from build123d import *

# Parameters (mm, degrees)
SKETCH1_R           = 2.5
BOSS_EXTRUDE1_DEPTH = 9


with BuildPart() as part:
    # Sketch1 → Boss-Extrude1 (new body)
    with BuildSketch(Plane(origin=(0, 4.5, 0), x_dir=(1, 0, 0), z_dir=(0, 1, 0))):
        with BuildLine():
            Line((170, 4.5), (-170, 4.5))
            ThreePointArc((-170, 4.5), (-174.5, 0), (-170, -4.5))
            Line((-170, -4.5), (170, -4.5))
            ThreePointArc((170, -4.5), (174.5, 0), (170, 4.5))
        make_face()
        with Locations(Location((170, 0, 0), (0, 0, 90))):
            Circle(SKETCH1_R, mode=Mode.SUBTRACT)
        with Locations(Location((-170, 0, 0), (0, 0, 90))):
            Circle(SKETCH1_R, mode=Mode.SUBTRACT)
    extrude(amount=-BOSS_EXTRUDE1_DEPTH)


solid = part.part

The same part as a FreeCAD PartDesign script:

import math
import FreeCAD as App
import Part
import Sketcher
from FreeCAD import Vector
Q = App.Units.Quantity

doc = App.newDocument("Part")
body = doc.addObject("PartDesign::Body", "Body")

sketch1 = body.newObject("Sketcher::SketchObject", "Sketch")
sketch1.AttachmentSupport = (doc.getObject("XZ_Plane"), [""])
sketch1.MapMode = "FlatFace"
sketch1.AttachmentOffset = App.Placement(Vector(0, 0, -4.5), App.Rotation())
sketch1.addGeometry([
    Part.LineSegment(Vector(170, -4.5, 0), Vector(-170, -4.5, 0)),
    Part.ArcOfCircle(Part.Circle(Vector(-170, 0, 0), Vector(0, 0, 1), 4.5), math.radians(90), math.radians(270)),
    Part.LineSegment(Vector(-170, 4.5, 0), Vector(170, 4.5, 0)),
    Part.ArcOfCircle(Part.Circle(Vector(170, 0, 0), Vector(0, 0, 1), 4.5), math.radians(-90), math.radians(90)),
    Part.Circle(Vector(-170, 0, 0), Vector(0, 0, 1), 2.5),
    Part.Circle(Vector(170, 0, 0), Vector(0, 0, 1), 2.5),
], False)
sketch1.addConstraint([
    Sketcher.Constraint("Tangent", 0, 2, 1, 2),
    Sketcher.Constraint("Tangent", 1, 1, 2, 1),
    Sketcher.Constraint("Tangent", 2, 2, 3, 2),
    Sketcher.Constraint("Tangent", 3, 1, 0, 1),
    Sketcher.Constraint("Horizontal", 0),
    Sketcher.Constraint("Horizontal", 2),
    Sketcher.Constraint("Coincident", 4, 3, 1, 3),
    Sketcher.Constraint("Coincident", 5, 3, 3, 3),
    Sketcher.Constraint("Equal", 4, 5),
    Sketcher.Constraint("Symmetric", 1, 3, 3, 3, -1, 1),
    Sketcher.Constraint("Diameter", 4, Q("5 mm")),
    Sketcher.Constraint("Radius", 1, Q("4.5 mm")),
    Sketcher.Constraint("DistanceX", 0, 2, 0, 1, Q("340 mm")),
])
pad1 = body.newObject("PartDesign::Pad", "Pad")
pad1.Profile = sketch1
pad1.Length = 9

doc.recompute()
